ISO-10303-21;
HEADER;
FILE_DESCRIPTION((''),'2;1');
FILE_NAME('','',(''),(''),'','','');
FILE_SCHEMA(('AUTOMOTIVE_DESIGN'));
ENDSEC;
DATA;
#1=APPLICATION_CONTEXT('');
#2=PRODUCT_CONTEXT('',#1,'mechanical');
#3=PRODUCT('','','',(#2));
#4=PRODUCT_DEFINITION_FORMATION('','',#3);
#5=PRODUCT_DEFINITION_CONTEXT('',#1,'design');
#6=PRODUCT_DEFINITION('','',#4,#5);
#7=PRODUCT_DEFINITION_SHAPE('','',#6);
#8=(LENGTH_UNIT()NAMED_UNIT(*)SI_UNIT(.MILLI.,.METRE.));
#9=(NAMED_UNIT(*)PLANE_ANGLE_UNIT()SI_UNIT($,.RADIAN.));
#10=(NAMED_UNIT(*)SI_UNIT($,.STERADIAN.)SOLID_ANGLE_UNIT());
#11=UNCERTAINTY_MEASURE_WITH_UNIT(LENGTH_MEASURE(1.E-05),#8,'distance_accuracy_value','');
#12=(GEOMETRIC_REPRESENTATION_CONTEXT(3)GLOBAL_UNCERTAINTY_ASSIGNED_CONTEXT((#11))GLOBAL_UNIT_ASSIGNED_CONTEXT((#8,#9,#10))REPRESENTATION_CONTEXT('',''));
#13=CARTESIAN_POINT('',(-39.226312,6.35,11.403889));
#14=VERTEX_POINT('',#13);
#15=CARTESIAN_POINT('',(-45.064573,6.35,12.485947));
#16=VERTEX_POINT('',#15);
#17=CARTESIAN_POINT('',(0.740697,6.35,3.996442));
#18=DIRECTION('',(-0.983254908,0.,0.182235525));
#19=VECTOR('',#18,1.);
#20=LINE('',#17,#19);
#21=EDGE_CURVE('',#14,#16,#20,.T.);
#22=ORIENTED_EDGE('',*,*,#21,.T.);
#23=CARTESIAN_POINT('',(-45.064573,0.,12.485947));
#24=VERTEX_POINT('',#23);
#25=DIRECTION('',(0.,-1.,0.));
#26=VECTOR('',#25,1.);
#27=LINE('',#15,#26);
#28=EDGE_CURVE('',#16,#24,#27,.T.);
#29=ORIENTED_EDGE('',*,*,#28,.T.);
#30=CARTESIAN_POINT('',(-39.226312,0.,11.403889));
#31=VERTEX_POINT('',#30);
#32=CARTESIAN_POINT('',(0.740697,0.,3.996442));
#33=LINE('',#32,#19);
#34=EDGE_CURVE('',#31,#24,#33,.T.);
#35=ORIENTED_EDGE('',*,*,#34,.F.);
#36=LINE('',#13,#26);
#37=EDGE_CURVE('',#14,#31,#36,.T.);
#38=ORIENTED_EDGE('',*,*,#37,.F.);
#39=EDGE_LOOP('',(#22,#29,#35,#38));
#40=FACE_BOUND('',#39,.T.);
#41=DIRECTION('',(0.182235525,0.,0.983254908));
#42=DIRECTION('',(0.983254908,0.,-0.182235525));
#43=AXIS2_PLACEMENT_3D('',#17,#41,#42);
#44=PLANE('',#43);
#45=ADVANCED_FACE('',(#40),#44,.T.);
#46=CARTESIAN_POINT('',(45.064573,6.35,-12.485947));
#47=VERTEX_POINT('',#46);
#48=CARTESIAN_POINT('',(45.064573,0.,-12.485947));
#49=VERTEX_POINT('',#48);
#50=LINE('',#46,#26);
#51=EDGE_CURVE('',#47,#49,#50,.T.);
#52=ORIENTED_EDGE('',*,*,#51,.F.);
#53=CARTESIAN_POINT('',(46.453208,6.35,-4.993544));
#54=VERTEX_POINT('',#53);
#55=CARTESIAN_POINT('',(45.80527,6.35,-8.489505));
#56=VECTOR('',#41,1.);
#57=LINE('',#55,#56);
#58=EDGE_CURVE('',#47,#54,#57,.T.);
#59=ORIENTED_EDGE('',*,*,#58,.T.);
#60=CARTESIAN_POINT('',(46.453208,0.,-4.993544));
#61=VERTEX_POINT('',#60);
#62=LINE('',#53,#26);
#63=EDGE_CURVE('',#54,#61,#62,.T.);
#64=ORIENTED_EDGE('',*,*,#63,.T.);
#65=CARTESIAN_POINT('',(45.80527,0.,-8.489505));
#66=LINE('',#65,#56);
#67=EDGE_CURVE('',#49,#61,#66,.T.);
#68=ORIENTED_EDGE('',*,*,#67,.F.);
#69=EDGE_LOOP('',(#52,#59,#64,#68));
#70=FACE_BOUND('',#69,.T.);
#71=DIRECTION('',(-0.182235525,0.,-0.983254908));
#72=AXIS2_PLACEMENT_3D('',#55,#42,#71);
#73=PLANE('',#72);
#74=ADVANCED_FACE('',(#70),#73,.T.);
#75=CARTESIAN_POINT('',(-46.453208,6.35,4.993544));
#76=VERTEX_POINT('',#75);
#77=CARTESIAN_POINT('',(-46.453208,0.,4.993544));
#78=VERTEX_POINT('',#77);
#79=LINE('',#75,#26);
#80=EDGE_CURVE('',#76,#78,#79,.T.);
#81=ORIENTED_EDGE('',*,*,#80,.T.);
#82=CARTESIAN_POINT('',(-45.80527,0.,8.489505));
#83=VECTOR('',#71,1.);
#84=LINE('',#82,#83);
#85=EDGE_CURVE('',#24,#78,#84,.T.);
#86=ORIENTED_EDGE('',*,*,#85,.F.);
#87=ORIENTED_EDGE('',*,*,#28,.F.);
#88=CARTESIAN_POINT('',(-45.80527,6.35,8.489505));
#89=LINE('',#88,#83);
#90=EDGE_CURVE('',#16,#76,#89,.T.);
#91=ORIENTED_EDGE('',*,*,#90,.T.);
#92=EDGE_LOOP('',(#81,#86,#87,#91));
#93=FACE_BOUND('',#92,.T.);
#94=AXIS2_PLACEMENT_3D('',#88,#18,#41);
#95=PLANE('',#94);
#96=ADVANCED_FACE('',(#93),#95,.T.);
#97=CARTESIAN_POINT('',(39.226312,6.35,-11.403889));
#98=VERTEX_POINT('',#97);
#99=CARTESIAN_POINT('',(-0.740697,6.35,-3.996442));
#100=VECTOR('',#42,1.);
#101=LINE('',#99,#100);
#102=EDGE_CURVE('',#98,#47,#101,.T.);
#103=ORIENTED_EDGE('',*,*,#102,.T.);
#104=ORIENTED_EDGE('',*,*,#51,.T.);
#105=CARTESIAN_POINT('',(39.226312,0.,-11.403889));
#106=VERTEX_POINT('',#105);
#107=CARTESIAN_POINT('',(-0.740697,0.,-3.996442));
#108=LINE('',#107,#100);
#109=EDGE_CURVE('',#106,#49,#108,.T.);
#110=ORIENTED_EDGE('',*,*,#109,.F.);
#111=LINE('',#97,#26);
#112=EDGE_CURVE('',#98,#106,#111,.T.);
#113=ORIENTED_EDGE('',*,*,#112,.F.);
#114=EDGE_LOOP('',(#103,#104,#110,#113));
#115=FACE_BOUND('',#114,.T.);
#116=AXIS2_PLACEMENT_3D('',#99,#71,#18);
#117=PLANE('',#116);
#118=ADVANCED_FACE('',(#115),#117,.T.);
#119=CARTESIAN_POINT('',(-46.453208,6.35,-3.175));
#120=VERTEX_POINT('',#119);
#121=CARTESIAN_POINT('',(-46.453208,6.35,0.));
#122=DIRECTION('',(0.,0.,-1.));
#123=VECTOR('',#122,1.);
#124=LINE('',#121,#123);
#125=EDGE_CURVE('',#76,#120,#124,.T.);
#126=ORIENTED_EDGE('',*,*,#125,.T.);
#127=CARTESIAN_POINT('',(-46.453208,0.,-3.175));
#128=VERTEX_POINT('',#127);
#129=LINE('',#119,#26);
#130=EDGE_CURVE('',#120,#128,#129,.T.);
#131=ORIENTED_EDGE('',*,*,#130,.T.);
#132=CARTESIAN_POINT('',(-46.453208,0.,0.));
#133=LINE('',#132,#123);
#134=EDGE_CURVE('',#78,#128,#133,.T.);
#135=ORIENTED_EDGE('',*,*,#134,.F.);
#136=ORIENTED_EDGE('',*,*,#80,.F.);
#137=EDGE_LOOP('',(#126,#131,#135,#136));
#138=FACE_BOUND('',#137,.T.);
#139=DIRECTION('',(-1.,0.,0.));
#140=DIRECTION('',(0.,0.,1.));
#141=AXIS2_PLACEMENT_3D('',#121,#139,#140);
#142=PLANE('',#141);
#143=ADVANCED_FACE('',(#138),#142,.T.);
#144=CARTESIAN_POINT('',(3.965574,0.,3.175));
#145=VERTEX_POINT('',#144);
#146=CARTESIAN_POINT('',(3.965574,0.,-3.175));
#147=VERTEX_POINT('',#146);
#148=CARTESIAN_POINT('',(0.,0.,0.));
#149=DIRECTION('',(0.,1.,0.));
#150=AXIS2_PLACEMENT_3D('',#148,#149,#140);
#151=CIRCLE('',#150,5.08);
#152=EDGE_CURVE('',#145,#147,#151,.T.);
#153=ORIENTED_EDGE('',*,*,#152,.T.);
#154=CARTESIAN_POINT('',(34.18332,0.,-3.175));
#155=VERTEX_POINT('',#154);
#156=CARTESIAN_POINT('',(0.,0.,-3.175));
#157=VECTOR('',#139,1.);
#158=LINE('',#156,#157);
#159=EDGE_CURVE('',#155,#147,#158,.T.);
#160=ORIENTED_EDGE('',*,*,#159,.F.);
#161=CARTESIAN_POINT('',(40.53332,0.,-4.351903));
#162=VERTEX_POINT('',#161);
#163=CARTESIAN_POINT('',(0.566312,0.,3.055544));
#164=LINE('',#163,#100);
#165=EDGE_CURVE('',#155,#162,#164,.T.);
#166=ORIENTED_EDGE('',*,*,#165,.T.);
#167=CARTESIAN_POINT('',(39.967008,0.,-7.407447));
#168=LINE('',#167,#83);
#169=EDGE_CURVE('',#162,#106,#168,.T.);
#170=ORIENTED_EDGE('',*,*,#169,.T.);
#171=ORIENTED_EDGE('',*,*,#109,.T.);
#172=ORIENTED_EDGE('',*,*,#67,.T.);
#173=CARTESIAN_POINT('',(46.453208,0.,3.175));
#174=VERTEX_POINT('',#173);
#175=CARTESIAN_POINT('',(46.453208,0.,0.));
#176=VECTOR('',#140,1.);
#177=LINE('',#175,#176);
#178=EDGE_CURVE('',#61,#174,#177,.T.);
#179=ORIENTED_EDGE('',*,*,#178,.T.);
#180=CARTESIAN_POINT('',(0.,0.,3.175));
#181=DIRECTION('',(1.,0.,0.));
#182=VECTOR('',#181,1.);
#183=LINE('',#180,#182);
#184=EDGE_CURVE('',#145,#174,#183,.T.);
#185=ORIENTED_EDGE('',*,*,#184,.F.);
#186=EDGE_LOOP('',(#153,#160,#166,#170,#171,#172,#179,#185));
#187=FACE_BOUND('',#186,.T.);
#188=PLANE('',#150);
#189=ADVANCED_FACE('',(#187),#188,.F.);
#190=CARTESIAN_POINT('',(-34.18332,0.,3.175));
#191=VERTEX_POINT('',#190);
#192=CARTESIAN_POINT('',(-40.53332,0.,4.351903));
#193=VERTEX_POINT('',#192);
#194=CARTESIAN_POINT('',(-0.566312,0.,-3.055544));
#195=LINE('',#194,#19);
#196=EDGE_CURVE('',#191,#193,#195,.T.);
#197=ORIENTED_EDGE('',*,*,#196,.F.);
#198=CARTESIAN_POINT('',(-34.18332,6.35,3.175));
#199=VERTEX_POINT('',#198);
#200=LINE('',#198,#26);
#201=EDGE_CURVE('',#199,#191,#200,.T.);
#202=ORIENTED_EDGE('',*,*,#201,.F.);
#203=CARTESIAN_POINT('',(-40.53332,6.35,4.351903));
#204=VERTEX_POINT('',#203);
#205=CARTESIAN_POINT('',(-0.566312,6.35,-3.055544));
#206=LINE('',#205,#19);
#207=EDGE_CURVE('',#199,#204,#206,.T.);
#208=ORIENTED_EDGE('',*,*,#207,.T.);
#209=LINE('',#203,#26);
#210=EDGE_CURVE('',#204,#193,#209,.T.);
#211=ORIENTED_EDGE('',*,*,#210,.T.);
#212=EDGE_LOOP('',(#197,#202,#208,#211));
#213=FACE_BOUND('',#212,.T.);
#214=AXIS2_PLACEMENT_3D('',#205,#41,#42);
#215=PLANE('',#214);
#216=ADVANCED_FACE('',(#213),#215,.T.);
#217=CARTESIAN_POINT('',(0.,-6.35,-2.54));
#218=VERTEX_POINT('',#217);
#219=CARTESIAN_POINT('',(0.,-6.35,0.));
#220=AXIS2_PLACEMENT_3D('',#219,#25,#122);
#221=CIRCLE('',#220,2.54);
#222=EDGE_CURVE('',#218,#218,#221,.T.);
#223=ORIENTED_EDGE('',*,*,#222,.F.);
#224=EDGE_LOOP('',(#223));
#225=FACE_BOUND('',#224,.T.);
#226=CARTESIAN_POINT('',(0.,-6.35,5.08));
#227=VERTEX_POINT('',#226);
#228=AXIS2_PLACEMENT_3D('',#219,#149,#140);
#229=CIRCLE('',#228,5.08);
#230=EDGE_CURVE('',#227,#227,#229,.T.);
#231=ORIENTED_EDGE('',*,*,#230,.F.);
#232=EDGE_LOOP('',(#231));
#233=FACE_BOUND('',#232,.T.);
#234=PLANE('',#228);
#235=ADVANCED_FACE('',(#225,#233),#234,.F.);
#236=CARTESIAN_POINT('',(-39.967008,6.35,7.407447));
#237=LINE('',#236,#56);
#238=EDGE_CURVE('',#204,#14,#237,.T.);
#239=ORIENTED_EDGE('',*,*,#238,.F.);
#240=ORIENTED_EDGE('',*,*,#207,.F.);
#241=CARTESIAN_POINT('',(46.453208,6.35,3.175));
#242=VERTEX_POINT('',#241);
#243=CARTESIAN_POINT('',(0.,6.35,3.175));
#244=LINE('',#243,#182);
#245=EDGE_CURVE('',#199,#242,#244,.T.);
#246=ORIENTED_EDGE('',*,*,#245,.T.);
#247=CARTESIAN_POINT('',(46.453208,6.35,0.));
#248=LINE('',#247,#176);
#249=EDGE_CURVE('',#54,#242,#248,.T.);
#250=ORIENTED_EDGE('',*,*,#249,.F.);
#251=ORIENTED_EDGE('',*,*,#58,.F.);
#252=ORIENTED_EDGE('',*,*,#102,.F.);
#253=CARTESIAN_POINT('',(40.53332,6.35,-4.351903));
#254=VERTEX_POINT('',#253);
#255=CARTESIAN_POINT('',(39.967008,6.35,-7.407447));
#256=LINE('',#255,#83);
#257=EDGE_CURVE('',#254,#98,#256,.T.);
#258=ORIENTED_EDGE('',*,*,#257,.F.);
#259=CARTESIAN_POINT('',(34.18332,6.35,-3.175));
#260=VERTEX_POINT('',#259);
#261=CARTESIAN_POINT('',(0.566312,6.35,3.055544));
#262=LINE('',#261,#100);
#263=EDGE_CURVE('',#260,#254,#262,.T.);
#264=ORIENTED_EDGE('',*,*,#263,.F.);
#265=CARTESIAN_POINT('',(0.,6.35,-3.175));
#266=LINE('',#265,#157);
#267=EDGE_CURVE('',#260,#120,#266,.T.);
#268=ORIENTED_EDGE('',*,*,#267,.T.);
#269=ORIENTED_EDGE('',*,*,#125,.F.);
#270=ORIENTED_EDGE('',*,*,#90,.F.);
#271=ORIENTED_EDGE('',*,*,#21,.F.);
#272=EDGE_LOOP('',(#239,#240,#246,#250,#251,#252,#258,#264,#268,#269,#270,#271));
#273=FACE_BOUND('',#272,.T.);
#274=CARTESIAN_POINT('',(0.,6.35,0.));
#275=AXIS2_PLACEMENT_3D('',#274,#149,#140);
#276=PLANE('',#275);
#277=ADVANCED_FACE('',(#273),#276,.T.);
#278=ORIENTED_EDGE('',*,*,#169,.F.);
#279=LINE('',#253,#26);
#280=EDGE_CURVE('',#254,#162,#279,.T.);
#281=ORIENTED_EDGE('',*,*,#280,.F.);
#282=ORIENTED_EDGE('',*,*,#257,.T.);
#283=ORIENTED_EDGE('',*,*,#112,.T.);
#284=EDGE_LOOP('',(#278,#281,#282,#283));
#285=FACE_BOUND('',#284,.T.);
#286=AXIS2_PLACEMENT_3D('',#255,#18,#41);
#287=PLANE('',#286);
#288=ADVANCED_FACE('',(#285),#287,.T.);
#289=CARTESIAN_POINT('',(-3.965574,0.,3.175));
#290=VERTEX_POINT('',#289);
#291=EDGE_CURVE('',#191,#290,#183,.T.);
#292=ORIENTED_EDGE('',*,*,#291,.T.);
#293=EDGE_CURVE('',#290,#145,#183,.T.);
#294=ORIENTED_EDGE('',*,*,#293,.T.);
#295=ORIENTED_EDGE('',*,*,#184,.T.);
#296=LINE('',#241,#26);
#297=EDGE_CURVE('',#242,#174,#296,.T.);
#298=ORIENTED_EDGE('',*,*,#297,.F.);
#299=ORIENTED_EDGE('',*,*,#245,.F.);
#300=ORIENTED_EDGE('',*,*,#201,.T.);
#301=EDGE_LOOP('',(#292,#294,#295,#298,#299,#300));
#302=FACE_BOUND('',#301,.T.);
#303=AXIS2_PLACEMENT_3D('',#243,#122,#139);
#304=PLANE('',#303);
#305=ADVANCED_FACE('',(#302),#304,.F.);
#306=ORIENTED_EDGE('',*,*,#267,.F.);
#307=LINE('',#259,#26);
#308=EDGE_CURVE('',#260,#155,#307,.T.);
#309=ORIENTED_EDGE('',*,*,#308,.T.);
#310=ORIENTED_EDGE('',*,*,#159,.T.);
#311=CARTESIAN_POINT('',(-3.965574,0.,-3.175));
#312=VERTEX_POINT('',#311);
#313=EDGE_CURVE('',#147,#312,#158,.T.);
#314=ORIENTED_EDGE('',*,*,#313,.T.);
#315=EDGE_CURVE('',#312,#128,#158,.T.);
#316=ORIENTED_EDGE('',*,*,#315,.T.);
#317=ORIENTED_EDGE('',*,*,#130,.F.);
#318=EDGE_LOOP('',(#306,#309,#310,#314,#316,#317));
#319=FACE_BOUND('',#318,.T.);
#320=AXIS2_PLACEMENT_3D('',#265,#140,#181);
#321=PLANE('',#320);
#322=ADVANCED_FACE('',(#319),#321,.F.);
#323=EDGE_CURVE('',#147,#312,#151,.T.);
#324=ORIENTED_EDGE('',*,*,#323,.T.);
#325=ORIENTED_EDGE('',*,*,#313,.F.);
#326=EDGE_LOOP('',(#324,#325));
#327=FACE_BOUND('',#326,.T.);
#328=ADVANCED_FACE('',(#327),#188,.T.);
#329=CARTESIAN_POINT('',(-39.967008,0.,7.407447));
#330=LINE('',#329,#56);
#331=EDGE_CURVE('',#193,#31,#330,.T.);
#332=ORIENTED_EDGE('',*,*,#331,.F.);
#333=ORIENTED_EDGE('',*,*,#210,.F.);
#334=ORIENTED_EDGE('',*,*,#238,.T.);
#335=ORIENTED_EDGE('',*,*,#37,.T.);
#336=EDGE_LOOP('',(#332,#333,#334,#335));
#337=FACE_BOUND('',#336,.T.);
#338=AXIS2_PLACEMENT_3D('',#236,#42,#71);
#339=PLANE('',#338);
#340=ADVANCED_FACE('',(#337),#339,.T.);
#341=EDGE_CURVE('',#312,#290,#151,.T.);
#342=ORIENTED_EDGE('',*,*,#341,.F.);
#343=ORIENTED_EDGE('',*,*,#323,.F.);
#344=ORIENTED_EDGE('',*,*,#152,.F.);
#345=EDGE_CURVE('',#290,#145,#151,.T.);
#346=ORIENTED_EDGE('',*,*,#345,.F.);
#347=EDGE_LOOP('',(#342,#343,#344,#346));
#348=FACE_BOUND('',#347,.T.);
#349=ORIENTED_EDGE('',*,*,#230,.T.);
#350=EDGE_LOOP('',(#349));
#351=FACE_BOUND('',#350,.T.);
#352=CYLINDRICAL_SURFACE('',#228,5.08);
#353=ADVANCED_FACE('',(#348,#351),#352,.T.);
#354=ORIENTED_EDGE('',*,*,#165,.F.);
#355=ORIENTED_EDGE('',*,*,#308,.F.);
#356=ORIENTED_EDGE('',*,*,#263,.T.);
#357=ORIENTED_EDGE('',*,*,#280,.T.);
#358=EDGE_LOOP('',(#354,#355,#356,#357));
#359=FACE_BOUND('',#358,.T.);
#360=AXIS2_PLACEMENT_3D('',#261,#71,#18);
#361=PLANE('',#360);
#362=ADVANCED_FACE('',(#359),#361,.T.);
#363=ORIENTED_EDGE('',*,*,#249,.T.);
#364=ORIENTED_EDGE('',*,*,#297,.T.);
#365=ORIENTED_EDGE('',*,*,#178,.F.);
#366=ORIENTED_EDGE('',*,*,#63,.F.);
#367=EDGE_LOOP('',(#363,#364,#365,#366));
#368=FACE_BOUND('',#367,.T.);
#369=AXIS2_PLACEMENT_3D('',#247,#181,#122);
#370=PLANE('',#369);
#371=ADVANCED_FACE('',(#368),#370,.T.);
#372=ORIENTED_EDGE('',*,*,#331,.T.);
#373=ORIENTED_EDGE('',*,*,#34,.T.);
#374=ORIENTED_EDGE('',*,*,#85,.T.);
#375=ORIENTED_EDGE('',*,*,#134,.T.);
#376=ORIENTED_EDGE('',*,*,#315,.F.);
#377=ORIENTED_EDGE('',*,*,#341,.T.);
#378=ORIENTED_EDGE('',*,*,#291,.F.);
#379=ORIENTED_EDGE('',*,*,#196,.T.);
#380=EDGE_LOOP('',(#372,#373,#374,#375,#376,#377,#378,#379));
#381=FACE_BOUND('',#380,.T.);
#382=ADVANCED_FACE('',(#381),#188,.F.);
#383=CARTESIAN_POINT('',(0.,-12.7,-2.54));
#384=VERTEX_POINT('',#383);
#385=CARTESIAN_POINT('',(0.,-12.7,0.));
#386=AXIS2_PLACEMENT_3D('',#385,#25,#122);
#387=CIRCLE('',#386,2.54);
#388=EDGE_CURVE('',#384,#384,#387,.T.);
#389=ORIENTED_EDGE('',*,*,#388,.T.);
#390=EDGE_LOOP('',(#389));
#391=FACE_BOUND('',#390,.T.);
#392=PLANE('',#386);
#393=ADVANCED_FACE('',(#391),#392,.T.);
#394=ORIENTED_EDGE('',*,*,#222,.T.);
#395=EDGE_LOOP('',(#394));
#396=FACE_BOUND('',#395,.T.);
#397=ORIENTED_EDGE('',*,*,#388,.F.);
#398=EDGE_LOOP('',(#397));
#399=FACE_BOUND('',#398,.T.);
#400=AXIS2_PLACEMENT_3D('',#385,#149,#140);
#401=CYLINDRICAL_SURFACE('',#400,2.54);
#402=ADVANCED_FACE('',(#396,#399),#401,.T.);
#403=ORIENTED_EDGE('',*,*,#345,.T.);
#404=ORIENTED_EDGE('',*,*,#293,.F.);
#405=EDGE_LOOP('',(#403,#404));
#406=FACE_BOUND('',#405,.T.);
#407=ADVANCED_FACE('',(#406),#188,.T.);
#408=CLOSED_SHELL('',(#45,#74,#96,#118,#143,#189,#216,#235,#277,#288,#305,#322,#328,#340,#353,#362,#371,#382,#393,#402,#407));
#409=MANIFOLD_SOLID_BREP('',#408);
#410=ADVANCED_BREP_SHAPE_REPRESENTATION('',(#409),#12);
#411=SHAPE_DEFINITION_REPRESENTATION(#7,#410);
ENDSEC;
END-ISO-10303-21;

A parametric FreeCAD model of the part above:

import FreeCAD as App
import Part
import Sketcher

V = App.Vector
Q = App.Units.Quantity


def add_polygon(sketch, points):
    """Adds a closed chain of lines whose ends are joined by coincident constraints."""
    first, n = sketch.GeometryCount, len(points)
    for a, b in zip(points, points[1:] + points[:1]):
        sketch.addGeometry(Part.LineSegment(App.Vector(*a, 0), App.Vector(*b, 0)), False)
    for i in range(n):
        sketch.addConstraint(Sketcher.Constraint("Coincident", first + i, 2, first + (i + 1) % n, 1))

doc = App.newDocument("Part")
body = doc.addObject("PartDesign::Body", "Body")

# Sketch on XZ plane
sketch1 = doc.addObject("Sketcher::SketchObject", "Sketch")
body.addObject(sketch1)
sketch1.AttachmentSupport = (doc.XZ_Plane, [""])
sketch1.MapMode = "FlatFace"
add_polygon(sketch1, [(34, -3), (0, -3), (0, 3), (46, 3), (46, -5), (45, -12), (39, -11), (41, -4)])  # lines 0-7
sketch1.addConstraint([
    Sketcher.Constraint("Horizontal", 0),
    Sketcher.Constraint("Vertical", 1),
    Sketcher.Constraint("Horizontal", 2),
    Sketcher.Constraint("Vertical", 3),
    Sketcher.Constraint("Symmetric", 0, 2, 1, 2, -1, 1),
    Sketcher.Constraint("Perpendicular", 4, 5),
    Sketcher.Constraint("Perpendicular", 5, 6),
    Sketcher.Constraint("Perpendicular", 6, 7),
    Sketcher.Constraint("Distance", 4, Q("0.3 in")),
    Sketcher.Constraint("DistanceY", 1, 1, 1, 2, Q("0.25 in")),
    Sketcher.Constraint("Angle", 4, Q("-100.5 deg")),
    Sketcher.Constraint("DistanceX", 7, 2, 6, 2, Q("0.25 in")),
    Sketcher.Constraint("DistanceX", 0, 2, 0, 1, Q("1.3458 in")),
    Sketcher.Constraint("Distance", 5, 5.937689),
    Sketcher.Constraint("DistanceX", 2, 1, 2, 2, 46.453208),
])
pad1 = doc.addObject("PartDesign::Pad", "Pad")
body.addObject(pad1)
pad1.Profile = sketch1
pad1.Length = Q("0.25 in")
pad1.Reversed = True
doc.recompute()

polarpattern = doc.addObject("PartDesign::PolarPattern", "PolarPattern")
body.addObject(polarpattern)
polarpattern.Originals = [pad1]
polarpattern.Axis = (doc.Y_Axis, [""])
polarpattern.Angle = 360
polarpattern.Occurrences = 2
body.Tip = polarpattern

# Sketch on XZ plane
sketch2 = doc.addObject("Sketcher::SketchObject", "Sketch001")
body.addObject(sketch2)
sketch2.AttachmentSupport = (doc.XZ_Plane, [""])
sketch2.MapMode = "FlatFace"
sketch2.addGeometry(Part.Circle(V(0, 0, 0), V(0, 0, 1), 5), False)
sketch2.addConstraint([
    Sketcher.Constraint("Coincident", 0, 3, -1, 1),
    Sketcher.Constraint("Diameter", 0, Q("0.4 in")),
])
pad2 = doc.addObject("PartDesign::Pad", "Pad001")
body.addObject(pad2)
pad2.Profile = sketch2
pad2.Length = Q("0.25 in")

# Sketch on XZ plane
sketch3 = doc.addObject("Sketcher::SketchObject", "Sketch002")
body.addObject(sketch3)
sketch3.AttachmentSupport = (doc.XZ_Plane, [""])
sketch3.MapMode = "FlatFace"
sketch3.AttachmentOffset = App.Placement(V(0, 0, 0.25 * 25.4), App.Rotation())
sketch3.addGeometry(Part.Circle(V(0, 0, 0), V(0, 0, 1), 2.5), False)
sketch3.addConstraint([
    Sketcher.Constraint("Coincident", 0, 3, -1, 1),
    Sketcher.Constraint("Diameter", 0, Q("0.2 in")),
])
pad3 = doc.addObject("PartDesign::Pad", "Pad002")
body.addObject(pad3)
pad3.Profile = sketch3
pad3.Length = Q("0.25 in")

doc.recompute()
